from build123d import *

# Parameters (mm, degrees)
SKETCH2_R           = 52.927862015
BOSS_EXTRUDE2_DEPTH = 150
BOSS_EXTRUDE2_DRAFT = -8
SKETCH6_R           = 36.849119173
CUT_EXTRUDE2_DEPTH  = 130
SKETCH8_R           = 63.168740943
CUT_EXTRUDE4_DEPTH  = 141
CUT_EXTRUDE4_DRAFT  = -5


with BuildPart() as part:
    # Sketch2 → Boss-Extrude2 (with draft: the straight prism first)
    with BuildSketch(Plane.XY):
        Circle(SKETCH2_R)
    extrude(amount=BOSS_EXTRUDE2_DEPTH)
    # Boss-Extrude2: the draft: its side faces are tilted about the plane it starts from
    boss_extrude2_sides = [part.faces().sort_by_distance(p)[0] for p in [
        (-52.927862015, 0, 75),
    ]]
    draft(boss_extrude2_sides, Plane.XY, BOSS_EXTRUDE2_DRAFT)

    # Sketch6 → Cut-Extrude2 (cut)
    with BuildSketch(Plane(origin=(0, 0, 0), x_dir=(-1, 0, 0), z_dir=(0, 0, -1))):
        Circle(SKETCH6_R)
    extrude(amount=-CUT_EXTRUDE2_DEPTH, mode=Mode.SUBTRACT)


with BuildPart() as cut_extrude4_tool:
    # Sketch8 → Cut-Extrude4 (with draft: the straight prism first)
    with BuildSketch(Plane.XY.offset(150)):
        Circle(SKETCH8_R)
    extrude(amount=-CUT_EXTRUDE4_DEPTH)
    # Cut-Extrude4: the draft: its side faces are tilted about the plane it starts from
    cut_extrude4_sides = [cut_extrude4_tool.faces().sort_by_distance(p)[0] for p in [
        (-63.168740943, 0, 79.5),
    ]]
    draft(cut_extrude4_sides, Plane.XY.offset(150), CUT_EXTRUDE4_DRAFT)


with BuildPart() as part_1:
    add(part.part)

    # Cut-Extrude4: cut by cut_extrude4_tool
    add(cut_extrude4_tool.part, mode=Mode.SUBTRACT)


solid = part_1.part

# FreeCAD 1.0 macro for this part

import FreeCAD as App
import Part
import Sketcher


def faces_at(feature, points):
    """Names of the faces that lie closest to the given points."""
    faces = feature.Shape.Faces
    near = lambda p: min(range(len(faces)), key=lambda i: faces[i].distToShape(Part.Vertex(*p))[0])
    return sorted({f"Face{near(p) + 1}" for p in points})

doc = App.newDocument("Part")
body = doc.addObject("PartDesign::Body", "Body")

sketch1 = body.newObject("Sketcher::SketchObject", "Sketch")
sketch1.AttachmentSupport = (doc.getObject("XY_Plane"), [""])
sketch1.MapMode = "FlatFace"
sketch1.addGeometry(Part.Circle(App.Vector(0, 0, 0), App.Vector(0, 0, 1), 52.927862), False)
sketch1.addConstraint([
    Sketcher.Constraint("Coincident", 0, 3, -1, 1),
    Sketcher.Constraint("Diameter", 0, 105.855724),
])
pad1 = body.newObject("PartDesign::Pad", "Pad")
pad1.Profile = sketch1
pad1.Length = 150
doc.recompute()

draft = body.newObject("PartDesign::Draft", "Draft")
draft.Base = (pad1, faces_at(pad1, [(-52.928, 0, 75)]))
draft.NeutralPlane = (doc.getObject("XY_Plane"), [""])
draft.Angle = 8
draft.Reversed = True

sketch2 = body.newObject("Sketcher::SketchObject", "Sketch001")
sketch2.AttachmentSupport = (doc.getObject("XY_Plane"), [""])
sketch2.MapMode = "FlatFace"
sketch2.addGeometry(Part.Circle(App.Vector(0, 0, 0), App.Vector(0, 0, 1), 36.849119), False)
sketch2.addConstraint([
    Sketcher.Constraint("Coincident", 0, 3, -1, 1),
    Sketcher.Constraint("Diameter", 0, 73.698238),
])
pocket1 = body.newObject("PartDesign::Pocket", "Pocket")
pocket1.Profile = sketch2
pocket1.Length = 130
pocket1.Reversed = True
body2 = doc.addObject("PartDesign::Body", "Body001")

sketch3 = body2.newObject("Sketcher::SketchObject", "Sketch002")
sketch3.AttachmentSupport = (doc.getObject("XY_Plane001"), [""])
sketch3.MapMode = "FlatFace"
sketch3.AttachmentOffset = App.Placement(App.Vector(0, 0, 150), App.Rotation())
sketch3.addGeometry(Part.Circle(App.Vector(0, 0, 0), App.Vector(0, 0, 1), 63.168741), False)
sketch3.addConstraint([
    Sketcher.Constraint("Coincident", 0, 3, -1, 1),
    Sketcher.Constraint("Diameter", 0, 126.337482),
])
pad2 = body2.newObject("PartDesign::Pad", "Pad001")
pad2.Profile = sketch3
pad2.Length = 141
pad2.Reversed = True
doc.recompute()

datumplane = body2.newObject("PartDesign::Plane", "DatumPlane")
datumplane.AttachmentSupport = (doc.getObject("XY_Plane001"), [""])
datumplane.MapMode = "FlatFace"
datumplane.AttachmentOffset = App.Placement(App.Vector(0, 0, 150), App.Rotation())
draft2 = body2.newObject("PartDesign::Draft", "Draft001")
draft2.Base = (pad2, faces_at(pad2, [(-63.169, 0, 79.5)]))
draft2.NeutralPlane = (datumplane, [""])
draft2.Angle = 5
draft2.Reversed = True
doc.recompute()

boolean = body.newObject("PartDesign::Boolean", "Boolean")
boolean.Type = "Cut"
boolean.addObjects([body2])

doc.recompute()
